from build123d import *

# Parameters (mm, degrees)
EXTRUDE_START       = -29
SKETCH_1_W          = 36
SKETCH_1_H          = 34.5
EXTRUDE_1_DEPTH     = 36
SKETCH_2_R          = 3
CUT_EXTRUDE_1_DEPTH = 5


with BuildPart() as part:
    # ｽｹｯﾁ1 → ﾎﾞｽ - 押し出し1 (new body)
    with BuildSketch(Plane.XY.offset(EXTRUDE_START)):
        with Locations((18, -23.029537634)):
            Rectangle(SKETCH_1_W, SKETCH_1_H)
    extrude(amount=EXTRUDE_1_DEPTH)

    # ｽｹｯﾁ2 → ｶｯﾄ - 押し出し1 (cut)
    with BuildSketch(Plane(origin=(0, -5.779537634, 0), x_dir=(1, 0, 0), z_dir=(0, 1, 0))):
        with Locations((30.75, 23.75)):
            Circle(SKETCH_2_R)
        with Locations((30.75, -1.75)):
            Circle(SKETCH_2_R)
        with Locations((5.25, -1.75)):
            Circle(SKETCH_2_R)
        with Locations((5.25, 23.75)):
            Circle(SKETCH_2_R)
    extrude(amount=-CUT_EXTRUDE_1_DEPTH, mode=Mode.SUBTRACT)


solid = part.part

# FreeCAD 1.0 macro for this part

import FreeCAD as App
import Part
import Sketcher

V = App.Vector
Q = App.Units.Quantity

doc = App.newDocument("Part")
body = doc.addObject("PartDesign::Body", "Body")

# Sketch on XY plane
sketch1 = doc.addObject("Sketcher::SketchObject", "Sketch")
body.addObject(sketch1)
sketch1.AttachmentSupport = (doc.XY_Plane, [""])
sketch1.MapMode = "FlatFace"
sketch1.AttachmentOffset = App.Placement(V(0, 0, -29), App.Rotation())
sketch1.addGeometry([
    Part.LineSegment(V(0, -6, 0), V(0, -40, 0)),
    Part.LineSegment(V(0, -40, 0), V(36, -40, 0)),
    Part.LineSegment(V(36, -40, 0), V(36, -6, 0)),
    Part.LineSegment(V(36, -6, 0), V(0, -6, 0)),
], False)
sketch1.addConstraint([
    Sketcher.Constraint("Coincident", 0, 2, 1, 1),
    Sketcher.Constraint("Coincident", 1, 2, 2, 1),
    Sketcher.Constraint("Coincident", 2, 2, 3, 1),
    Sketcher.Constraint("Coincident", 3, 2, 0, 1),
    Sketcher.Constraint("Vertical", 0),
    Sketcher.Constraint("Horizontal", 1),
    Sketcher.Constraint("Vertical", 2),
    Sketcher.Constraint("Horizontal", 3),
    Sketcher.Constraint("PointOnObject", 0, 2, -2),
    Sketcher.Constraint("DistanceX", 1, 1, 1, 2, Q("36 mm")),
    Sketcher.Constraint("DistanceY", 0, 2, 0, 1, Q("34.5 mm")),
    Sketcher.Constraint("DistanceY", 0, 2, -1, 1, Q("40.279538 mm")),
])
pad1 = doc.addObject("PartDesign::Pad", "Pad")
body.addObject(pad1)
pad1.Profile = sketch1
pad1.Length = 36

# Sketch on XZ plane
sketch2 = doc.addObject("Sketcher::SketchObject", "Sketch001")
body.addObject(sketch2)
sketch2.AttachmentSupport = (doc.XZ_Plane, [""])
sketch2.MapMode = "FlatFace"
sketch2.AttachmentOffset = App.Placement(V(0, 0, 5.779538), App.Rotation())
sketch2.addGeometry([
    Part.Circle(V(30.8, -23.8, 0), V(0, 0, 1), 3),
    Part.Circle(V(30.8, 1.8, 0), V(0, 0, 1), 3),
    Part.Circle(V(5.2, 1.8, 0), V(0, 0, 1), 3),
    Part.Circle(V(5.2, -23.8, 0), V(0, 0, 1), 3),
], False)
sketch2.addConstraint([
    Sketcher.Constraint("Equal", 0, 1),
    Sketcher.Constraint("Equal", 1, 2),
    Sketcher.Constraint("Equal", 2, 3),
    Sketcher.Constraint("Horizontal", 1, 3, 2, 3),
    Sketcher.Constraint("Horizontal", 0, 3, 3, 3),
    Sketcher.Constraint("Vertical", 0, 3, 1, 3),
    Sketcher.Constraint("Vertical", 2, 3, 3, 3),
    Sketcher.Constraint("Diameter", 0, Q("6 mm")),
    Sketcher.Constraint("DistanceY", 0, 3, 1, 3, Q("25.5 mm")),
    Sketcher.Constraint("DistanceX", 2, 3, 1, 3, Q("25.5 mm")),
    Sketcher.Constraint("DistanceX", -1, 1, 0, 3, Q("30.75 mm")),
    Sketcher.Constraint("DistanceY", 0, 3, -1, 1, Q("23.75 mm")),
])
pocket1 = doc.addObject("PartDesign::Pocket", "Pocket")
body.addObject(pocket1)
pocket1.Profile = sketch2
pocket1.Length = 5
pocket1.Reversed = True

doc.recompute()
